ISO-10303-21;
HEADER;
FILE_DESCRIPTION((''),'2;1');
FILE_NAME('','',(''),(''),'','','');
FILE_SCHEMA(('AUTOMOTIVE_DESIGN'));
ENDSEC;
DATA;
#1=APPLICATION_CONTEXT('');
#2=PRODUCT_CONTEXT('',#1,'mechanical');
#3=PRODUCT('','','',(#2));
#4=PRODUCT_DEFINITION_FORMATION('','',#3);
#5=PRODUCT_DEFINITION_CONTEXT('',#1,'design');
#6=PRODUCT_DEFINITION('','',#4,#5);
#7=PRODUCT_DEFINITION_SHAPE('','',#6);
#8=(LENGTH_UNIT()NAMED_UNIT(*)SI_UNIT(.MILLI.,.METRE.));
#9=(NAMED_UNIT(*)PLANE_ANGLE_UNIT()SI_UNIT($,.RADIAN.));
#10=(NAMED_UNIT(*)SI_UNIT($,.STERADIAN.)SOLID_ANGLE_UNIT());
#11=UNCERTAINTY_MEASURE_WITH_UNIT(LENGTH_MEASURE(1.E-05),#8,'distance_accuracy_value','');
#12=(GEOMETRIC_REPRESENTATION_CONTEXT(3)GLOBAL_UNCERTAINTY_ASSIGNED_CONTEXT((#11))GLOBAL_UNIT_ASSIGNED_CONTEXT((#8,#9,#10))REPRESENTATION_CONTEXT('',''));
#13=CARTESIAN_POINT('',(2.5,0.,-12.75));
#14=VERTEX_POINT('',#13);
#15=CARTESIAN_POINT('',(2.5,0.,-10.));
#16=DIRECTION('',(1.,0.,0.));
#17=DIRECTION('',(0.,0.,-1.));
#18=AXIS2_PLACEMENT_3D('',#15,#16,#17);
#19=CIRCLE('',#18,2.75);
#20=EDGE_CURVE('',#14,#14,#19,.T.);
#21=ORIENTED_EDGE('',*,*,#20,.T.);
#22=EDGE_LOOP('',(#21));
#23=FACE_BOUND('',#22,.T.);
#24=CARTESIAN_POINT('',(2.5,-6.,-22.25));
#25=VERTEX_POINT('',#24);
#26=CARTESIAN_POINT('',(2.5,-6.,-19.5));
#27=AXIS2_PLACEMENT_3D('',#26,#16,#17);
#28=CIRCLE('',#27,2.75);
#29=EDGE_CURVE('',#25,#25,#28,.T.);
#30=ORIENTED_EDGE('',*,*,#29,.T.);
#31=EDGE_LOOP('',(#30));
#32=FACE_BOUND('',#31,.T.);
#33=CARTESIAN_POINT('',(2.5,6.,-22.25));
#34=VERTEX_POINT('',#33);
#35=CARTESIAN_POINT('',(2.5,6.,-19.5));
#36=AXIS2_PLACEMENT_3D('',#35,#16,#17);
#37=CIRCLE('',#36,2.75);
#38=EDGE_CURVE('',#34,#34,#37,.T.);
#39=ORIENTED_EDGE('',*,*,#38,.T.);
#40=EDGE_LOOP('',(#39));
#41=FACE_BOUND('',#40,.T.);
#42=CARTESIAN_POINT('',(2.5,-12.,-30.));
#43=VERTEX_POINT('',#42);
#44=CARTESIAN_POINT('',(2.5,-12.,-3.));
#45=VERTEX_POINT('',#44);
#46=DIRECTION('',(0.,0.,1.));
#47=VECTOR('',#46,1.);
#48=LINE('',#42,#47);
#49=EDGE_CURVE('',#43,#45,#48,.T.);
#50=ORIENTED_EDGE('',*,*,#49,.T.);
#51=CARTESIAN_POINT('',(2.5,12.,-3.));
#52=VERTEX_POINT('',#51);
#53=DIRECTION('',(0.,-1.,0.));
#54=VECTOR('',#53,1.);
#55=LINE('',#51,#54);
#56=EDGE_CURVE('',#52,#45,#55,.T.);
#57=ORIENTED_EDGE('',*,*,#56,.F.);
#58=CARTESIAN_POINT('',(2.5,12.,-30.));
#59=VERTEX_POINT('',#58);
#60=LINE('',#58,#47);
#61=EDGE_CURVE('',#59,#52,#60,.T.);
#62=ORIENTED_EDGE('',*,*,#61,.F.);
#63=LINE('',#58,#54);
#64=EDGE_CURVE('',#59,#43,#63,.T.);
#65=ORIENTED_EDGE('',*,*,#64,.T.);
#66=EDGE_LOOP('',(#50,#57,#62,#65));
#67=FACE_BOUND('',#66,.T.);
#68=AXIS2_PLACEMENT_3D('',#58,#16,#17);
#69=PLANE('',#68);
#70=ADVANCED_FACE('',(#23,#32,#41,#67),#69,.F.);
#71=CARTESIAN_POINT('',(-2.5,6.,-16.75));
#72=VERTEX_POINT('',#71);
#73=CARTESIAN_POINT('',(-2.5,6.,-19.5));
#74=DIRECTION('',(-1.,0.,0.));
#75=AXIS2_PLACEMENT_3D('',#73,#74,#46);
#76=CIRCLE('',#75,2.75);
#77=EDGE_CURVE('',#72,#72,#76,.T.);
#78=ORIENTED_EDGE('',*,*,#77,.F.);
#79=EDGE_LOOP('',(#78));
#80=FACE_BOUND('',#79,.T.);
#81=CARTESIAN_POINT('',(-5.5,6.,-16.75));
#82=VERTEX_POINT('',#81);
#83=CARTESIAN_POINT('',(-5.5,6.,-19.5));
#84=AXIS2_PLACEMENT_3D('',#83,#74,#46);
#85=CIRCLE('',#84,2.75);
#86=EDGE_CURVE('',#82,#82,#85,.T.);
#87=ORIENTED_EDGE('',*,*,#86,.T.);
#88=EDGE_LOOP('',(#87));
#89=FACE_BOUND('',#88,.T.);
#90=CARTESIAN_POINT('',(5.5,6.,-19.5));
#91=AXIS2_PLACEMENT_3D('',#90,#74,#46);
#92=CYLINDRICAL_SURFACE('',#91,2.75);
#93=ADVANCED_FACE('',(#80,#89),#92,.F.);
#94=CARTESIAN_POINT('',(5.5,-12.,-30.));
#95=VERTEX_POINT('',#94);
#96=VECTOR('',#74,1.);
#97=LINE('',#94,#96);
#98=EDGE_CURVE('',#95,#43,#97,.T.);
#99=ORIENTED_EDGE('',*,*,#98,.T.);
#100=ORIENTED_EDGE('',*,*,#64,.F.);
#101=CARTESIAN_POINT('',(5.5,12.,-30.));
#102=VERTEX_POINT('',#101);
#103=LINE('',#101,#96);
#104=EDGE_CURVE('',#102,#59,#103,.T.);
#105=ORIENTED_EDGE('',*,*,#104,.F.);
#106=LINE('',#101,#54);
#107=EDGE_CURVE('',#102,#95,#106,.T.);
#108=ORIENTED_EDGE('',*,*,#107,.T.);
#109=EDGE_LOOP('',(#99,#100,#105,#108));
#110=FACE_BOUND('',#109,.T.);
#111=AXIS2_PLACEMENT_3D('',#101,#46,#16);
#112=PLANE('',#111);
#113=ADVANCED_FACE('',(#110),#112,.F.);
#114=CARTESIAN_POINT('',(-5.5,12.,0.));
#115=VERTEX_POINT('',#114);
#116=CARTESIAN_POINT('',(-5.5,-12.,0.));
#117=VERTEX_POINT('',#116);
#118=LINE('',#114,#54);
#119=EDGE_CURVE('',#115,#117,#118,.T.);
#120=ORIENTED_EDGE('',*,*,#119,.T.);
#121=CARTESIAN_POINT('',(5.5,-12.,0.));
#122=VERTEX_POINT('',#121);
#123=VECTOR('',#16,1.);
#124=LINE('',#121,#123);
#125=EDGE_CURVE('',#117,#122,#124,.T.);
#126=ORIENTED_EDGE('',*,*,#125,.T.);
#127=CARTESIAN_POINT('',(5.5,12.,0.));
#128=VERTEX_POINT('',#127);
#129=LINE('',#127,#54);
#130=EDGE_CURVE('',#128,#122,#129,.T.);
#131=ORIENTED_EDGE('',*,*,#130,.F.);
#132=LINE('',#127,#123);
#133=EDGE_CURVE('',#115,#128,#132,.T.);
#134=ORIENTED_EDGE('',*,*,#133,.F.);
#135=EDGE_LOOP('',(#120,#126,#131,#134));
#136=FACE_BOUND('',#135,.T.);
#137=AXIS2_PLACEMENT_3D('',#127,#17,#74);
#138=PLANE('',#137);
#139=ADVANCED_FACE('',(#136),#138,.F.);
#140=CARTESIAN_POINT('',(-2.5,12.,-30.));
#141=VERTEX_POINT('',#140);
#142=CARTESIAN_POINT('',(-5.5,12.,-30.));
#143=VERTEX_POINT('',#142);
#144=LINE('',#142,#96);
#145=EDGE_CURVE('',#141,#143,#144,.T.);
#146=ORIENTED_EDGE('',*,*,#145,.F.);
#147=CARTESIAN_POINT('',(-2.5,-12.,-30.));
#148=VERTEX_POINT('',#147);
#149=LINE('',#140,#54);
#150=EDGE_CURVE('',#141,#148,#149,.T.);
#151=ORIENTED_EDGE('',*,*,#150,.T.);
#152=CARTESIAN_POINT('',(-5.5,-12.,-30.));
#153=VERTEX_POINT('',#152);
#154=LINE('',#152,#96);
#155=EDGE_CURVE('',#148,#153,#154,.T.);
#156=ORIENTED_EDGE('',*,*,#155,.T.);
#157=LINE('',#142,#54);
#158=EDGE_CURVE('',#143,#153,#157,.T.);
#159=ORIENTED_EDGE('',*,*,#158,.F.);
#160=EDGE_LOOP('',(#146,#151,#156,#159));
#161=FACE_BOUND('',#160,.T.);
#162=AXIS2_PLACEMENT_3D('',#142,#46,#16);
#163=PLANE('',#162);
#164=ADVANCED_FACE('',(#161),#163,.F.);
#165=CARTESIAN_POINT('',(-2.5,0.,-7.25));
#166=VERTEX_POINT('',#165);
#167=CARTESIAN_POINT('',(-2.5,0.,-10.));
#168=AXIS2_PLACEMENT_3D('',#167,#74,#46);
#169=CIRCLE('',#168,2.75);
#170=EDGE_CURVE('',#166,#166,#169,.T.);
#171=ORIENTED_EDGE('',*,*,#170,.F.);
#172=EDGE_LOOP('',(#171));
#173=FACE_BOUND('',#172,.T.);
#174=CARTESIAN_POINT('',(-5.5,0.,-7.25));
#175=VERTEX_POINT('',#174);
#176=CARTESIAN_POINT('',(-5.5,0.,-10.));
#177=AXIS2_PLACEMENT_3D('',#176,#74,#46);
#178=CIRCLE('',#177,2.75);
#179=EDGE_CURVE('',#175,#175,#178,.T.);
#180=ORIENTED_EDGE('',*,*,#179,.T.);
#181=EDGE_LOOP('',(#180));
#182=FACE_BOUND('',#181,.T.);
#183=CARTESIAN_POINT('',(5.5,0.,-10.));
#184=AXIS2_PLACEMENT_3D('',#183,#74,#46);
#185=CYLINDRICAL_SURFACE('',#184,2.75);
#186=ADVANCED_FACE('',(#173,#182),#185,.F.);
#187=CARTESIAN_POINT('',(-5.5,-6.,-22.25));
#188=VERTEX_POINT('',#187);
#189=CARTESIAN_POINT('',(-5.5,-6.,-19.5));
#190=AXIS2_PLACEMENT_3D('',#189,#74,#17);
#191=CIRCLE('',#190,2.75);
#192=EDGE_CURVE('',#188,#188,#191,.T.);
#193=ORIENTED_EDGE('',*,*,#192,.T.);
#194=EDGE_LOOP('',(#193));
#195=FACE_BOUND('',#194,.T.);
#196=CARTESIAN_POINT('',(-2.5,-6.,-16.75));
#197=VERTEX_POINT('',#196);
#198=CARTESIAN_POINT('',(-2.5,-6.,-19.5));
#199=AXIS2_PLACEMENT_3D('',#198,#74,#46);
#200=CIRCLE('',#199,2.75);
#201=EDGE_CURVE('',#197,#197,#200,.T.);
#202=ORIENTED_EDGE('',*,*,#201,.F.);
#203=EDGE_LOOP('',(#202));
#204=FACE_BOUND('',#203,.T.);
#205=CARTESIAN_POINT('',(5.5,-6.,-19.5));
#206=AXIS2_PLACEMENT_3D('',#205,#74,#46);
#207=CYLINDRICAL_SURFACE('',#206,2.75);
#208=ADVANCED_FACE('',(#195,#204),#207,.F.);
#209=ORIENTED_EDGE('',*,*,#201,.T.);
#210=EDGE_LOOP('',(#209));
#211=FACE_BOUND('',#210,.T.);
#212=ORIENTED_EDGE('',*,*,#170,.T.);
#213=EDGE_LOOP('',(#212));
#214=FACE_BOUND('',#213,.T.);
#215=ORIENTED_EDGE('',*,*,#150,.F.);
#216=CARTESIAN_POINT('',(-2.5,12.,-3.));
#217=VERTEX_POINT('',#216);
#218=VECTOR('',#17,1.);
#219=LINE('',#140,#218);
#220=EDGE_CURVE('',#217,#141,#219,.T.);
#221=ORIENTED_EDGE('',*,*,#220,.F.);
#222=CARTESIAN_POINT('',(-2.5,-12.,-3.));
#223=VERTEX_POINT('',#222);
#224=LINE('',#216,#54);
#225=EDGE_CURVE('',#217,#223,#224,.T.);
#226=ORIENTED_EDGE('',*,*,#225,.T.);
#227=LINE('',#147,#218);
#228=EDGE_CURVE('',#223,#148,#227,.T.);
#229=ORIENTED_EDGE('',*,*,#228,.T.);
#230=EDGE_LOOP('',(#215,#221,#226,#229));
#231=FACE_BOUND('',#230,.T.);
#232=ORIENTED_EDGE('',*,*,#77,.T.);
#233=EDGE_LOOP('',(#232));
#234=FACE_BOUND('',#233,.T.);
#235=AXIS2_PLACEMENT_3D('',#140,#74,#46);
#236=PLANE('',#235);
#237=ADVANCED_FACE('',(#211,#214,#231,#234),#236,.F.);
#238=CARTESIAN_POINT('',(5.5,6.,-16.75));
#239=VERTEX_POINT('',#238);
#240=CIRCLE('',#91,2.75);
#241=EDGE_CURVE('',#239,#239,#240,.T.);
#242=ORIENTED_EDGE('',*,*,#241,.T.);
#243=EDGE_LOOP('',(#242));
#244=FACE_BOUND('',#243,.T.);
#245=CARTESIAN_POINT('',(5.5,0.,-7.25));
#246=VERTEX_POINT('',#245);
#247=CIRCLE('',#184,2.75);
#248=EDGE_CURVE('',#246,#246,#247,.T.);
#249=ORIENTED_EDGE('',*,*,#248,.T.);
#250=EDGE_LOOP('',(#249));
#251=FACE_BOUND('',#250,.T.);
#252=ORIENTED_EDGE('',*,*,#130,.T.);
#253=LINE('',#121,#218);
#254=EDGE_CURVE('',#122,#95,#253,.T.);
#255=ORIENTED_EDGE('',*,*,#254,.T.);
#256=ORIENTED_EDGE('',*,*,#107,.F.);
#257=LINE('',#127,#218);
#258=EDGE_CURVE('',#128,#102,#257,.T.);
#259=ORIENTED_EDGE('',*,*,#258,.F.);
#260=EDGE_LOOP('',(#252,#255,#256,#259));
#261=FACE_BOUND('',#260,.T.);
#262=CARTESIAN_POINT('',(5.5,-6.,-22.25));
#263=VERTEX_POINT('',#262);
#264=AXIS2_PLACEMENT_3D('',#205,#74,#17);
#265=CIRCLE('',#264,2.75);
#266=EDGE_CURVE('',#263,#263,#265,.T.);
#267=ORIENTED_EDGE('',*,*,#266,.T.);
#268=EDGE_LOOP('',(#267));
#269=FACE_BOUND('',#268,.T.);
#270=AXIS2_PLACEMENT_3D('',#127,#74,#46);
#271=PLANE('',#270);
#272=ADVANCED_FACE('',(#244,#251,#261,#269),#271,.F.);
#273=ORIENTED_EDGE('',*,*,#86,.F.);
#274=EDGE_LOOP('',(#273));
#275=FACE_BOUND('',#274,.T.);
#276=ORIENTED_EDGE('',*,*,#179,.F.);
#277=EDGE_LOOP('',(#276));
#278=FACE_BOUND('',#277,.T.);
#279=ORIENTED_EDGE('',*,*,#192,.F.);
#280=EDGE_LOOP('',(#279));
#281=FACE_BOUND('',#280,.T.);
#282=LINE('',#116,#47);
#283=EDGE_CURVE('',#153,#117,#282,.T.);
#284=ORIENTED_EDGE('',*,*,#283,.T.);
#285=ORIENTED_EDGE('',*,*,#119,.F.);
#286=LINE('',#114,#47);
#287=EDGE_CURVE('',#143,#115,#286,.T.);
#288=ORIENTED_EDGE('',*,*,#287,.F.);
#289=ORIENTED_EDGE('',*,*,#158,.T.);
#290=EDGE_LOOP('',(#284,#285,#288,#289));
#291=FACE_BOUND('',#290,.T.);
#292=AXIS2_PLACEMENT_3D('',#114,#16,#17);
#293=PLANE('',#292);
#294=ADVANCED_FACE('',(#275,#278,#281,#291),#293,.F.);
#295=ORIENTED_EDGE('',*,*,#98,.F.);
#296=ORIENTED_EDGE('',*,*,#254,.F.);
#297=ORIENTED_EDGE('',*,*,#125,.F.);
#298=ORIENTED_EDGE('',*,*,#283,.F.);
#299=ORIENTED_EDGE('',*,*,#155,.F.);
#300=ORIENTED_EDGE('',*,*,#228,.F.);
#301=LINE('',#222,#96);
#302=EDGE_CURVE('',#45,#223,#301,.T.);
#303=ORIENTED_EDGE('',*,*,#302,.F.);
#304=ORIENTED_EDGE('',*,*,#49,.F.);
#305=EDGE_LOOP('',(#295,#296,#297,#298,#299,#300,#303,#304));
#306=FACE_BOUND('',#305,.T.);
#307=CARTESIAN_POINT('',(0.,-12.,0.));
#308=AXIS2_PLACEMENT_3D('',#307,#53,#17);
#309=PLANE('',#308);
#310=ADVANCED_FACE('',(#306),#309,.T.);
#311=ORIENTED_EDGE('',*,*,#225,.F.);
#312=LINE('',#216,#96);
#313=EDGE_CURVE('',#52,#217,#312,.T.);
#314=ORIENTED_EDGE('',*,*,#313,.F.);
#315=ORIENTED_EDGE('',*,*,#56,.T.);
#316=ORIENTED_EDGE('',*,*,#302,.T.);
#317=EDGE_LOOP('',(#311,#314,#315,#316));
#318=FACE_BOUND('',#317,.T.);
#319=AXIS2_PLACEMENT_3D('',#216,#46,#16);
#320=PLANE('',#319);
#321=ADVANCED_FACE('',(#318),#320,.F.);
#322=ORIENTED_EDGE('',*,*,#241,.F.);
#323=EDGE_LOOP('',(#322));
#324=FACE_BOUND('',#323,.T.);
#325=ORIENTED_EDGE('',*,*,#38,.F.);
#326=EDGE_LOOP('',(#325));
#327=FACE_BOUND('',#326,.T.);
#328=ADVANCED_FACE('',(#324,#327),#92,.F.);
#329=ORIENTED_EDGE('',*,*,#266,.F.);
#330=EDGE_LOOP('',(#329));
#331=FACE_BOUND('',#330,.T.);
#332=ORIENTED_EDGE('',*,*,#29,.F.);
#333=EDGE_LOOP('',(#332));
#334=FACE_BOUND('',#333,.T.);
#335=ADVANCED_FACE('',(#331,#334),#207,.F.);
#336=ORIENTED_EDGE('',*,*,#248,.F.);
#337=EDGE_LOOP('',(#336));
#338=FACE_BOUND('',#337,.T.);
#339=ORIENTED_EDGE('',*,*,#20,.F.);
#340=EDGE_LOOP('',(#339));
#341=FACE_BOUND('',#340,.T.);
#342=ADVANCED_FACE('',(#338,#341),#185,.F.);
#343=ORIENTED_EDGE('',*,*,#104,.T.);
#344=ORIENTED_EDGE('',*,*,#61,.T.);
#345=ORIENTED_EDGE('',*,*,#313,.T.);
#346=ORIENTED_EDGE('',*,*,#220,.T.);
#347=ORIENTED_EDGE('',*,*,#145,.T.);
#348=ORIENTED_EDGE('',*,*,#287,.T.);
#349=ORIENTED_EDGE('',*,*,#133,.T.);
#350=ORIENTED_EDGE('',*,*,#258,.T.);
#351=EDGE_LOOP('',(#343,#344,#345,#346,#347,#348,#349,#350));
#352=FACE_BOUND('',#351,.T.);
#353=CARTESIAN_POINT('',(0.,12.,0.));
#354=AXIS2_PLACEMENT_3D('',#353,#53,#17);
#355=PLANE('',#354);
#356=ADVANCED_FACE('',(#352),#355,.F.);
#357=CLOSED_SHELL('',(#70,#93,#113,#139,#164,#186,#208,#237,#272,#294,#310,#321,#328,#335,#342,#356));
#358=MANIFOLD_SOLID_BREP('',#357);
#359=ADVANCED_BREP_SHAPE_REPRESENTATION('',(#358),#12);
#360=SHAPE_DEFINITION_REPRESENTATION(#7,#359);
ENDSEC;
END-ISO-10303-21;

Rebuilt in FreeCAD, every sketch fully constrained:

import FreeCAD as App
import Part
import Sketcher

V = App.Vector
Q = App.Units.Quantity

doc = App.newDocument("Part")
body = doc.addObject("PartDesign::Body", "Body")

sketch1 = doc.addObject("Sketcher::SketchObject", "Sketch")
body.addObject(sketch1)
sketch1.AttachmentSupport = (doc.XZ_Plane, [""])
sketch1.MapMode = "FlatFace"
sketch1.addGeometry([
    Part.LineSegment(V(-5.5, 0, 0), V(5.5, 0, 0)),
    Part.LineSegment(V(5.5, 0, 0), V(5.5, -30, 0)),
    Part.LineSegment(V(5.5, -30, 0), V(2.5, -30, 0)),
    Part.LineSegment(V(2.5, -30, 0), V(2.5, -3, 0)),
    Part.LineSegment(V(2.5, -3, 0), V(-2.5, -3, 0)),
    Part.LineSegment(V(-2.5, -3, 0), V(-2.5, -30, 0)),
    Part.LineSegment(V(-2.5, -30, 0), V(-5.5, -30, 0)),
    Part.LineSegment(V(-5.5, -30, 0), V(-5.5, 0, 0)),
], False)
sketch1.addConstraint([
    Sketcher.Constraint("Coincident", 0, 2, 1, 1),
    Sketcher.Constraint("Coincident", 1, 2, 2, 1),
    Sketcher.Constraint("Coincident", 2, 2, 3, 1),
    Sketcher.Constraint("Coincident", 3, 2, 4, 1),
    Sketcher.Constraint("Coincident", 4, 2, 5, 1),
    Sketcher.Constraint("Coincident", 5, 2, 6, 1),
    Sketcher.Constraint("Coincident", 6, 2, 7, 1),
    Sketcher.Constraint("Coincident", 7, 2, 0, 1),
    Sketcher.Constraint("Horizontal", 0),
    Sketcher.Constraint("Vertical", 1),
    Sketcher.Constraint("Horizontal", 2),
    Sketcher.Constraint("Vertical", 3),
    Sketcher.Constraint("Horizontal", 4),
    Sketcher.Constraint("Vertical", 5),
    Sketcher.Constraint("Horizontal", 6),
    Sketcher.Constraint("Vertical", 7),
    Sketcher.Constraint("Symmetric", 0, 2, 7, 2, -1, 1),
    Sketcher.Constraint("Symmetric", 2, 2, 5, 2, -2),
    Sketcher.Constraint("DistanceX", 0, 1, 0, 2, Q("11 mm")),
    Sketcher.Constraint("DistanceX", 2, 2, 2, 1, Q("3 mm")),
    Sketcher.Constraint("DistanceY", 1, 2, 1, 1, Q("30 mm")),
    Sketcher.Constraint("DistanceY", 3, 1, 3, 2, Q("27 mm")),
])
pad1 = doc.addObject("PartDesign::Pad", "Pad")
body.addObject(pad1)
pad1.Profile = sketch1
pad1.Length = 24
pad1.Midplane = True

sketch2 = doc.addObject("Sketcher::SketchObject", "Sketch001")
body.addObject(sketch2)
sketch2.AttachmentSupport = (doc.YZ_Plane, [""])
sketch2.MapMode = "FlatFace"
sketch2.AttachmentOffset = App.Placement(V(0, 0, -5.5), App.Rotation())
sketch2.addGeometry([
    Part.Circle(V(0, -10, 0), V(0, 0, 1), 2.8),
    Part.Circle(V(6, -19.5, 0), V(0, 0, 1), 2.8),
    Part.Circle(V(-6, -19.5, 0), V(0, 0, 1), 2.8),
], False)
sketch2.addConstraint([
    Sketcher.Constraint("Equal", 0, 1),
    Sketcher.Constraint("Equal", 1, 2),
    Sketcher.Constraint("Symmetric", 1, 3, 2, 3, -2),
    Sketcher.Constraint("PointOnObject", 0, 3, -2),
    Sketcher.Constraint("Diameter", 0, Q("5.5 mm")),
    Sketcher.Constraint("DistanceY", 0, 3, -1, 1, Q("10 mm")),
    Sketcher.Constraint("DistanceX", -1, 1, 1, 3, Q("6 mm")),
    Sketcher.Constraint("DistanceY", 1, 3, -1, 1, Q("19.5 mm")),
])
pocket1 = doc.addObject("PartDesign::Pocket", "Pocket")
body.addObject(pocket1)
pocket1.Profile = sketch2
pocket1.Type = "ThroughAll"
pocket1.Reversed = True

doc.recompute()
